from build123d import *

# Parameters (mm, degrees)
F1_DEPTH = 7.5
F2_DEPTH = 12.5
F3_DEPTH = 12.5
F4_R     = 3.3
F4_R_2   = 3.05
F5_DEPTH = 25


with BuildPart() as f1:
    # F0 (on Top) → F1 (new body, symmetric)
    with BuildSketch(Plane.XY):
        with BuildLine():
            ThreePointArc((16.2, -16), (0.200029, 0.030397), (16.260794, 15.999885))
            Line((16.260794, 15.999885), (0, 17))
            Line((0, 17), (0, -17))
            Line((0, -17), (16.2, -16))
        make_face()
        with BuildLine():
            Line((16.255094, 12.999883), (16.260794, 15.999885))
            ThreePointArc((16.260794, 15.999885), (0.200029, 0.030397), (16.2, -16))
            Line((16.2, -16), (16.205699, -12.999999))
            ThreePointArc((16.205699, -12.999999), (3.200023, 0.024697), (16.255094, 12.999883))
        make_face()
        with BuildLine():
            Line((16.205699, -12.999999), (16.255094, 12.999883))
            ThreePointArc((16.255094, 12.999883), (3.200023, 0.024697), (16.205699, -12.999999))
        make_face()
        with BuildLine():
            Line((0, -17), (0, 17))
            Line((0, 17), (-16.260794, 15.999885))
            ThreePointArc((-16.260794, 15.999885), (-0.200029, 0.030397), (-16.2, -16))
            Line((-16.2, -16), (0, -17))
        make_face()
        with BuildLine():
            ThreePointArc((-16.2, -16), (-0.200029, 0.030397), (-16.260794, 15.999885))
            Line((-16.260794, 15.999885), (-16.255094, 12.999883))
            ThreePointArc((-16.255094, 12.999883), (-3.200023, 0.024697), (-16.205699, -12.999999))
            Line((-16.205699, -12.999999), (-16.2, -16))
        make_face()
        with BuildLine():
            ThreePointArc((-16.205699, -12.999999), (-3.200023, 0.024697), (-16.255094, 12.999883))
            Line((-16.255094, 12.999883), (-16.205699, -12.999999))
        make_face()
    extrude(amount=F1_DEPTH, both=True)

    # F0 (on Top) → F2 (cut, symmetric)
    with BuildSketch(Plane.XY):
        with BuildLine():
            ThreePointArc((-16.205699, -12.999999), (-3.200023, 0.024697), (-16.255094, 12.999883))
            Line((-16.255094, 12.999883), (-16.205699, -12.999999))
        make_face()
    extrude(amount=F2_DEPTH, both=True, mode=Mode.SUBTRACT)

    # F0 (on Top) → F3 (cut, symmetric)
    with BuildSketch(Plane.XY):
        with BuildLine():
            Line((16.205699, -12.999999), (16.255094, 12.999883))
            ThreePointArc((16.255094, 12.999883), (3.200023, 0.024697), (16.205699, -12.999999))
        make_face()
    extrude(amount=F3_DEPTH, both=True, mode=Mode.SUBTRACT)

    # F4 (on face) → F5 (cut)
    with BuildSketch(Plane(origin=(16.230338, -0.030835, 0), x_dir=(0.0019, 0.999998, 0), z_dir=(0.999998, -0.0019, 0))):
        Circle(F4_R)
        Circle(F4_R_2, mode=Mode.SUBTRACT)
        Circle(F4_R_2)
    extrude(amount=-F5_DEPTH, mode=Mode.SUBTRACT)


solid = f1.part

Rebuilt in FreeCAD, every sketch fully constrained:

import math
import FreeCAD as App
import Part
import Sketcher
from FreeCAD import Vector


def add_polygon(sketch, points):
    """Adds a closed chain of lines whose ends are joined by coincident constraints."""
    first, n = sketch.GeometryCount, len(points)
    for a, b in zip(points, points[1:] + points[:1]):
        sketch.addGeometry(Part.LineSegment(App.Vector(*a, 0), App.Vector(*b, 0)), False)
    for i in range(n):
        sketch.addConstraint(Sketcher.Constraint("Coincident", first + i, 2, first + (i + 1) % n, 1))

doc = App.newDocument("Part")
body = doc.addObject("PartDesign::Body", "Body")

# Sketch on XY plane
sketch1 = body.newObject("Sketcher::SketchObject", "Sketch")
sketch1.AttachmentSupport = (doc.getObject("XY_Plane"), [""])
sketch1.MapMode = "FlatFace"
add_polygon(sketch1, [(16.260794, 15.999885), (0, 17), (-16.260794, 15.999885), (-16.255094, 12.999883), (-16.205699, -12.999999), (-16.2, -16), (0, -17), (16.2, -16), (16.205699, -12.999999), (16.255094, 12.999883)])  # lines 0-9
sketch1.addConstraint([
    Sketcher.Constraint("PointOnObject", 0, 2, -2),
    Sketcher.Constraint("PointOnObject", 5, 2, -2),
    Sketcher.Constraint("DistanceY", -1, 1, 0, 2, 17.0),
    Sketcher.Constraint("DistanceY", 3, 2, -1, 1, 12.999999),
    Sketcher.Constraint("DistanceY", 4, 2, -1, 1, 16.0),
    Sketcher.Constraint("DistanceY", 5, 2, -1, 1, 17.0),
    Sketcher.Constraint("DistanceY", 6, 2, -1, 1, 16.0),
    Sketcher.Constraint("DistanceY", 7, 2, -1, 1, 12.999999),
    Sketcher.Constraint("DistanceX", 4, 2, -1, 1, 16.2),
    Sketcher.Constraint("DistanceX", -1, 1, 6, 2, 16.2),
    Sketcher.Constraint("DistanceX", 3, 2, -1, 1, 16.205699),
    Sketcher.Constraint("DistanceX", -1, 1, 7, 2, 16.205699),
    Sketcher.Constraint("DistanceX", 1, 2, 2, 2, 0.0057),
    Sketcher.Constraint("DistanceX", 8, 2, 9, 2, 0.0057),
    Sketcher.Constraint("Distance", 0, 16.291521),
    Sketcher.Constraint("Distance", 1, 16.291521),
    Sketcher.Constraint("Distance", 3, 25.999929),
    Sketcher.Constraint("Distance", 8, 25.999929),
    Sketcher.Constraint("DistanceX", 1, 2, 8, 2, 32.515888),
    Sketcher.Constraint("Distance", 2, 3.000007),
])
pad1 = body.newObject("PartDesign::Pad", "Pad")
pad1.Profile = sketch1
pad1.Length = 15
pad1.Midplane = True

# Sketch on XY plane
sketch2 = body.newObject("Sketcher::SketchObject", "Sketch001")
sketch2.AttachmentSupport = (doc.getObject("XY_Plane"), [""])
sketch2.MapMode = "FlatFace"
sketch2.addGeometry([
    Part.ArcOfCircle(Part.Circle(Vector(-16.2, 0, 0), Vector(0, 0, 1), 13), math.radians(-90.02512), math.radians(90.242822)),
    Part.LineSegment(Vector(-16.255094, 12.999883, 0), Vector(-16.205699, -12.999999, 0)),
], False)
sketch2.addConstraint([
    Sketcher.Constraint("Coincident", 0, 1, 1, 2),
    Sketcher.Constraint("Coincident", 1, 1, 0, 2),
    Sketcher.Constraint("PointOnObject", 0, 3, -1),
    Sketcher.Constraint("Radius", 0, 13.0),
    Sketcher.Constraint("DistanceX", 0, 3, -1, 1, 16.2),
    Sketcher.Constraint("DistanceX", 0, 1, -1, 1, 16.205699),
    Sketcher.Constraint("DistanceY", 0, 1, 1, 1, 25.999882),
])
pocket1 = body.newObject("PartDesign::Pocket", "Pocket")
pocket1.Profile = sketch2
pocket1.Length = 25
pocket1.Midplane = True

# Sketch on XY plane
sketch3 = body.newObject("Sketcher::SketchObject", "Sketch002")
sketch3.AttachmentSupport = (doc.getObject("XY_Plane"), [""])
sketch3.MapMode = "FlatFace"
sketch3.addGeometry([
    Part.LineSegment(Vector(16.205699, -12.999999, 0), Vector(16.255094, 12.999883, 0)),
    Part.ArcOfCircle(Part.Circle(Vector(16.2, 0, 0), Vector(0, 0, 1), 13), math.radians(89.757178), math.radians(270.02512)),
], False)
sketch3.addConstraint([
    Sketcher.Constraint("Coincident", 0, 1, 1, 2),
    Sketcher.Constraint("Coincident", 1, 1, 0, 2),
    Sketcher.Constraint("PointOnObject", 1, 3, -1),
    Sketcher.Constraint("Radius", 1, 13.0),
    Sketcher.Constraint("DistanceX", -1, 1, 1, 3, 16.2),
    Sketcher.Constraint("DistanceX", -1, 1, 0, 1, 16.205699),
    Sketcher.Constraint("DistanceX", -1, 1, 1, 1, 16.255094),
])
pocket2 = body.newObject("PartDesign::Pocket", "Pocket001")
pocket2.Profile = sketch3
pocket2.Length = 25
pocket2.Midplane = True

# Sketch on an angled plane
sketch4 = body.newObject("Sketcher::SketchObject", "Sketch003")
sketch4.Placement = App.Placement(Vector(16.230338, -0.030835, 0), App.Rotation(Vector(0.0019, 0.999998195, 0), Vector(0, 0, 1), Vector(0.999998195, -0.0019, 0), "ZXY"))
sketch4.addGeometry(Part.Circle(Vector(0, 0, 0), Vector(0, 0, 1), 3.3), False)
sketch4.addConstraint([
    Sketcher.Constraint("Coincident", 0, 3, -1, 1),
    Sketcher.Constraint("Diameter", 0, 6.6),
])
pocket3 = body.newObject("PartDesign::Pocket", "Pocket002")
pocket3.Profile = sketch4
pocket3.Length = 25

doc.recompute()
